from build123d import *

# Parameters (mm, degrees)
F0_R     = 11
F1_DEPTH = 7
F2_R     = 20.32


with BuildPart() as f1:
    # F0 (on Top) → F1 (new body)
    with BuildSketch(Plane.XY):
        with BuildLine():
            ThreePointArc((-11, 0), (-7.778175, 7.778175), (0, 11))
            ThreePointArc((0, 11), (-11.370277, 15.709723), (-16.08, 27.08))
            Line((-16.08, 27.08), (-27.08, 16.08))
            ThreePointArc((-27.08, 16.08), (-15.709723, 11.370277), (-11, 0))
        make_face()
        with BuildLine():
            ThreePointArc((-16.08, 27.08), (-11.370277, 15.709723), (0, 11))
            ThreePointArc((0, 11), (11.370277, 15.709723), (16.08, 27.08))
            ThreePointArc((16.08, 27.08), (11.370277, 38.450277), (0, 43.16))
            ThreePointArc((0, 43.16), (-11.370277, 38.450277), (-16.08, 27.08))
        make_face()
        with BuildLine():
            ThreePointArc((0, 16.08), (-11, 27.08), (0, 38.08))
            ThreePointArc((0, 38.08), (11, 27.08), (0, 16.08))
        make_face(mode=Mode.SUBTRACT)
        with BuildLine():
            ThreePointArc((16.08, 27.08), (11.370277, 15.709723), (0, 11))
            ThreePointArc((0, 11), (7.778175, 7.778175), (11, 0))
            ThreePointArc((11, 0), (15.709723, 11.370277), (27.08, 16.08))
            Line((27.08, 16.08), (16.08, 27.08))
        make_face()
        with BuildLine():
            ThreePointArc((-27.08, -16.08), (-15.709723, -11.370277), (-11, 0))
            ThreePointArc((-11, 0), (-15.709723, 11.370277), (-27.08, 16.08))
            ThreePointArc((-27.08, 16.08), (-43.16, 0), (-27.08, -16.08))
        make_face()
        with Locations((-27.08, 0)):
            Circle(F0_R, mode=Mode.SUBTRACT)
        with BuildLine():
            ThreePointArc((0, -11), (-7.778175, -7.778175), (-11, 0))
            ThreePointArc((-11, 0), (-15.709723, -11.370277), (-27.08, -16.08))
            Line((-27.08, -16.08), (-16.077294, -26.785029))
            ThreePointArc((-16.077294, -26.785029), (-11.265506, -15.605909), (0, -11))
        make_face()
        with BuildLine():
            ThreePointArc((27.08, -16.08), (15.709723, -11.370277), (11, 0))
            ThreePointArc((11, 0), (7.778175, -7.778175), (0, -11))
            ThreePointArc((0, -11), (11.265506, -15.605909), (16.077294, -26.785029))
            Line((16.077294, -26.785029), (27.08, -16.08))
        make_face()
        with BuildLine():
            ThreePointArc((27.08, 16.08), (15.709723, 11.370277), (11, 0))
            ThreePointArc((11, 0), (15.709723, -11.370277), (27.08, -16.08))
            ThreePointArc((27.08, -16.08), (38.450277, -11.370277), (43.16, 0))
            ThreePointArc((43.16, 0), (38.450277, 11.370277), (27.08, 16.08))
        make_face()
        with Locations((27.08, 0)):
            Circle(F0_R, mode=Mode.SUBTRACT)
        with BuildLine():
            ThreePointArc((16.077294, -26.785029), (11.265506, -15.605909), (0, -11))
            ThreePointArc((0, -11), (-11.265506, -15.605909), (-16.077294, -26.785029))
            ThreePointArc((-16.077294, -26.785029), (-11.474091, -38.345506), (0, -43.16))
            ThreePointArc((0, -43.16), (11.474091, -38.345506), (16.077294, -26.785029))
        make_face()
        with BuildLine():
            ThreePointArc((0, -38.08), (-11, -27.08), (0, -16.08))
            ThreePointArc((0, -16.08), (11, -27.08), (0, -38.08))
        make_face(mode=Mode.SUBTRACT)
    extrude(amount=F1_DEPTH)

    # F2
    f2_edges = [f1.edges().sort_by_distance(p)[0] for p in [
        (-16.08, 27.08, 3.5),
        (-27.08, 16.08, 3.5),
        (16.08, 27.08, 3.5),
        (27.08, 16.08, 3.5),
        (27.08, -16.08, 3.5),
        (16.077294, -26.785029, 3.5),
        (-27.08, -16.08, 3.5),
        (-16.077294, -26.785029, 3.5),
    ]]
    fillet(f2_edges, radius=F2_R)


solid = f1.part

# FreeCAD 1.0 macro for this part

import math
import FreeCAD as App
import Part
import Sketcher


def edges_at(feature, points):
    """Names of the edges that pass closest to the given points."""
    edges = feature.Shape.Edges
    near = lambda p: min(range(len(edges)), key=lambda i: edges[i].distToShape(Part.Vertex(*p))[0])
    return sorted({f"Edge{near(p) + 1}" for p in points})

doc = App.newDocument("Part")
params = doc.addObject("Spreadsheet::Sheet", "Params")
for row, (alias, value) in enumerate([
    ("sketch1_diameter", "22 mm"),
    ("sketch1_radius", "16.08 mm"),
    ("pad1_length", "7 mm"),
    ("fillet_radius", "20.32 mm"),
], start=1):
    params.set(f"A{row}", alias)
    params.set(f"B{row}", "=" + value)
    params.setAlias(f"B{row}", alias)

body = doc.addObject("PartDesign::Body", "Body")

sketch1 = body.newObject("Sketcher::SketchObject", "Sketch")
sketch1.AttachmentSupport = (doc.getObject("XY_Plane"), [""])
sketch1.MapMode = "FlatFace"
sketch1.addGeometry(Part.LineSegment(App.Vector(-27, -16, 0), App.Vector(-16, -27, 0)), False)
sketch1.addGeometry(Part.ArcOfCircle(Part.Circle(App.Vector(0, -27, 0), App.Vector(0, 0, 1), 16), math.radians(179), math.radians(270)), False)
sketch1.addGeometry(Part.ArcOfCircle(Part.Circle(App.Vector(0, -27, 0), App.Vector(0, 0, 1), 16), math.radians(-90), math.radians(1)), False)
sketch1.addGeometry(Part.LineSegment(App.Vector(16, -27, 0), App.Vector(27, -16, 0)), False)
sketch1.addGeometry(Part.ArcOfCircle(Part.Circle(App.Vector(27, 0, 0), App.Vector(0, 0, 1), 16), math.radians(-90), math.radians(0)), False)
sketch1.addGeometry(Part.ArcOfCircle(Part.Circle(App.Vector(27, 0, 0), App.Vector(0, 0, 1), 16), math.radians(0), math.radians(90)), False)
sketch1.addGeometry(Part.LineSegment(App.Vector(27, 16, 0), App.Vector(16, 27, 0)), False)
sketch1.addGeometry(Part.ArcOfCircle(Part.Circle(App.Vector(0, 27, 0), App.Vector(0, 0, 1), 16), math.radians(0), math.radians(90)), False)
sketch1.addGeometry(Part.ArcOfCircle(Part.Circle(App.Vector(0, 27, 0), App.Vector(0, 0, 1), 16), math.radians(90), math.radians(180)), False)
sketch1.addGeometry(Part.LineSegment(App.Vector(-16, 27, 0), App.Vector(-27, 16, 0)), False)
sketch1.addGeometry(Part.ArcOfCircle(Part.Circle(App.Vector(-27, 0, 0), App.Vector(0, 0, 1), 16), math.radians(90), math.radians(270)), False)
sketch1.addGeometry(Part.Circle(App.Vector(0, -27, 0), App.Vector(0, 0, 1), 11), False)
sketch1.addGeometry(Part.Circle(App.Vector(-27, 0, 0), App.Vector(0, 0, 1), 11), False)
sketch1.addGeometry(Part.ArcOfCircle(Part.Circle(App.Vector(0, 0, 0), App.Vector(0, 0, 1), 11), math.radians(-90), math.radians(0)), False)
sketch1.addGeometry(Part.ArcOfCircle(Part.Circle(App.Vector(0, 0, 0), App.Vector(0, 0, 1), 11), math.radians(180), math.radians(270)), False)
sketch1.addGeometry(Part.ArcOfCircle(Part.Circle(App.Vector(0, 0, 0), App.Vector(0, 0, 1), 11), math.radians(90), math.radians(180)), False)
sketch1.addGeometry(Part.ArcOfCircle(Part.Circle(App.Vector(0, 0, 0), App.Vector(0, 0, 1), 11), math.radians(0), math.radians(90)), False)
sketch1.addGeometry(Part.Circle(App.Vector(27, 0, 0), App.Vector(0, 0, 1), 11), False)
sketch1.addGeometry(Part.Circle(App.Vector(0, 27, 0), App.Vector(0, 0, 1), 11), False)
sketch1.addConstraint(Sketcher.Constraint("Coincident", 0, 2, 1, 1))
sketch1.addConstraint(Sketcher.Constraint("Tangent", 1, 2, 2, 1))
sketch1.addConstraint(Sketcher.Constraint("Coincident", 2, 2, 3, 1))
sketch1.addConstraint(Sketcher.Constraint("Coincident", 3, 2, 4, 1))
sketch1.addConstraint(Sketcher.Constraint("Tangent", 4, 2, 5, 1))
sketch1.addConstraint(Sketcher.Constraint("Coincident", 5, 2, 6, 1))
sketch1.addConstraint(Sketcher.Constraint("Coincident", 6, 2, 7, 1))
sketch1.addConstraint(Sketcher.Constraint("Tangent", 7, 2, 8, 1))
sketch1.addConstraint(Sketcher.Constraint("Coincident", 8, 2, 9, 1))
sketch1.addConstraint(Sketcher.Constraint("Coincident", 9, 2, 10, 1))
sketch1.addConstraint(Sketcher.Constraint("Coincident", 10, 2, 0, 1))
sketch1.addConstraint(Sketcher.Constraint("Tangent", 13, 1, 14, 2))
sketch1.addConstraint(Sketcher.Constraint("Tangent", 14, 1, 15, 2))
sketch1.addConstraint(Sketcher.Constraint("Tangent", 15, 1, 16, 2))
sketch1.addConstraint(Sketcher.Constraint("Tangent", 16, 1, 13, 2))
sketch1.addConstraint(Sketcher.Constraint("Coincident", 13, 3, -1, 1))
sketch1.addConstraint(Sketcher.Constraint("Coincident", 11, 3, 1, 3))
sketch1.addConstraint(Sketcher.Constraint("Coincident", 12, 3, 10, 3))
sketch1.addConstraint(Sketcher.Constraint("Coincident", 17, 3, 4, 3))
sketch1.addConstraint(Sketcher.Constraint("Coincident", 18, 3, 7, 3))
sketch1.addConstraint(Sketcher.Constraint("Equal", 1, 2))
sketch1.addConstraint(Sketcher.Constraint("Equal", 2, 4))
sketch1.addConstraint(Sketcher.Constraint("Equal", 4, 5))
sketch1.addConstraint(Sketcher.Constraint("Equal", 5, 7))
sketch1.addConstraint(Sketcher.Constraint("Equal", 7, 8))
sketch1.addConstraint(Sketcher.Constraint("Equal", 8, 10))
sketch1.addConstraint(Sketcher.Constraint("Equal", 11, 12))
sketch1.addConstraint(Sketcher.Constraint("Equal", 12, 13))
sketch1.addConstraint(Sketcher.Constraint("Equal", 13, 14))
sketch1.addConstraint(Sketcher.Constraint("Equal", 16, 17))
sketch1.addConstraint(Sketcher.Constraint("Equal", 17, 18))
sketch1.addConstraint(Sketcher.Constraint("Symmetric", 1, 3, 7, 3, -1, 1))
sketch1.addConstraint(Sketcher.Constraint("Symmetric", 4, 3, 10, 3, -1, 1))
sketch1.addConstraint(Sketcher.Constraint("Symmetric", 0, 2, 2, 2, -2))
sketch1.addConstraint(Sketcher.Constraint("Symmetric", 5, 2, 9, 2, -2))
sketch1.addConstraint(Sketcher.Constraint("PointOnObject", 1, 2, -2))
sketch1.addConstraint(Sketcher.Constraint("PointOnObject", 4, 2, -1))
sketch1.addConstraint(Sketcher.Constraint("PointOnObject", 7, 2, -2))
sketch1.addConstraint(Sketcher.Constraint("PointOnObject", 13, 1, -2))
sketch1.addConstraint(Sketcher.Constraint("PointOnObject", 14, 1, -1))
sketch1.addConstraint(Sketcher.Constraint("PointOnObject", 15, 1, -2))
sketch1.addConstraint(Sketcher.Constraint("PointOnObject", 16, 1, -1))
sketch1.addConstraint(Sketcher.Constraint("Perpendicular", 6, 9))
sketch1.addConstraint(Sketcher.Constraint("Horizontal", 18, 3, 6, 2))
sketch1.addConstraint(Sketcher.Constraint("Horizontal", 6, 2, 8, 2))
sketch1.addConstraint(Sketcher.Constraint("Vertical", 17, 3, 3, 2))
sketch1.addConstraint(Sketcher.Constraint("Vertical", 3, 2, 5, 2))
sketch1.addConstraint(Sketcher.Constraint("Vertical", 9, 2, 10, 2))
sketch1.addConstraint(Sketcher.Constraint("Diameter", 11, 22.0))
sketch1.addConstraint(Sketcher.Constraint("Radius", 1, 16.08))
sketch1.addConstraint(Sketcher.Constraint("DistanceY", 1, 3, 3, 2, 11.0))
sketch1.addConstraint(Sketcher.Constraint("Distance", 0, 15.35113))
sketch1.setExpression("Constraints[48]", "Params.sketch1_diameter")
sketch1.setExpression("Constraints[49]", "Params.sketch1_radius")
pad1 = body.newObject("PartDesign::Pad", "Pad")
pad1.Profile = sketch1
pad1.setExpression("Length", "Params.pad1_length")
doc.recompute()

fillet = body.newObject("PartDesign::Fillet", "Fillet")
fillet.Base = (pad1, edges_at(pad1, [
    (-16.08, 27.08, 3.5),
    (-27.08, 16.08, 3.5),
    (16.08, 27.08, 3.5),
    (27.08, 16.08, 3.5),
    (27.08, -16.08, 3.5),
    (16.077, -26.785, 3.5),
    (-27.08, -16.08, 3.5),
    (-16.077, -26.785, 3.5),
]))
fillet.setExpression("Radius", "Params.fillet_radius")

doc.recompute()
